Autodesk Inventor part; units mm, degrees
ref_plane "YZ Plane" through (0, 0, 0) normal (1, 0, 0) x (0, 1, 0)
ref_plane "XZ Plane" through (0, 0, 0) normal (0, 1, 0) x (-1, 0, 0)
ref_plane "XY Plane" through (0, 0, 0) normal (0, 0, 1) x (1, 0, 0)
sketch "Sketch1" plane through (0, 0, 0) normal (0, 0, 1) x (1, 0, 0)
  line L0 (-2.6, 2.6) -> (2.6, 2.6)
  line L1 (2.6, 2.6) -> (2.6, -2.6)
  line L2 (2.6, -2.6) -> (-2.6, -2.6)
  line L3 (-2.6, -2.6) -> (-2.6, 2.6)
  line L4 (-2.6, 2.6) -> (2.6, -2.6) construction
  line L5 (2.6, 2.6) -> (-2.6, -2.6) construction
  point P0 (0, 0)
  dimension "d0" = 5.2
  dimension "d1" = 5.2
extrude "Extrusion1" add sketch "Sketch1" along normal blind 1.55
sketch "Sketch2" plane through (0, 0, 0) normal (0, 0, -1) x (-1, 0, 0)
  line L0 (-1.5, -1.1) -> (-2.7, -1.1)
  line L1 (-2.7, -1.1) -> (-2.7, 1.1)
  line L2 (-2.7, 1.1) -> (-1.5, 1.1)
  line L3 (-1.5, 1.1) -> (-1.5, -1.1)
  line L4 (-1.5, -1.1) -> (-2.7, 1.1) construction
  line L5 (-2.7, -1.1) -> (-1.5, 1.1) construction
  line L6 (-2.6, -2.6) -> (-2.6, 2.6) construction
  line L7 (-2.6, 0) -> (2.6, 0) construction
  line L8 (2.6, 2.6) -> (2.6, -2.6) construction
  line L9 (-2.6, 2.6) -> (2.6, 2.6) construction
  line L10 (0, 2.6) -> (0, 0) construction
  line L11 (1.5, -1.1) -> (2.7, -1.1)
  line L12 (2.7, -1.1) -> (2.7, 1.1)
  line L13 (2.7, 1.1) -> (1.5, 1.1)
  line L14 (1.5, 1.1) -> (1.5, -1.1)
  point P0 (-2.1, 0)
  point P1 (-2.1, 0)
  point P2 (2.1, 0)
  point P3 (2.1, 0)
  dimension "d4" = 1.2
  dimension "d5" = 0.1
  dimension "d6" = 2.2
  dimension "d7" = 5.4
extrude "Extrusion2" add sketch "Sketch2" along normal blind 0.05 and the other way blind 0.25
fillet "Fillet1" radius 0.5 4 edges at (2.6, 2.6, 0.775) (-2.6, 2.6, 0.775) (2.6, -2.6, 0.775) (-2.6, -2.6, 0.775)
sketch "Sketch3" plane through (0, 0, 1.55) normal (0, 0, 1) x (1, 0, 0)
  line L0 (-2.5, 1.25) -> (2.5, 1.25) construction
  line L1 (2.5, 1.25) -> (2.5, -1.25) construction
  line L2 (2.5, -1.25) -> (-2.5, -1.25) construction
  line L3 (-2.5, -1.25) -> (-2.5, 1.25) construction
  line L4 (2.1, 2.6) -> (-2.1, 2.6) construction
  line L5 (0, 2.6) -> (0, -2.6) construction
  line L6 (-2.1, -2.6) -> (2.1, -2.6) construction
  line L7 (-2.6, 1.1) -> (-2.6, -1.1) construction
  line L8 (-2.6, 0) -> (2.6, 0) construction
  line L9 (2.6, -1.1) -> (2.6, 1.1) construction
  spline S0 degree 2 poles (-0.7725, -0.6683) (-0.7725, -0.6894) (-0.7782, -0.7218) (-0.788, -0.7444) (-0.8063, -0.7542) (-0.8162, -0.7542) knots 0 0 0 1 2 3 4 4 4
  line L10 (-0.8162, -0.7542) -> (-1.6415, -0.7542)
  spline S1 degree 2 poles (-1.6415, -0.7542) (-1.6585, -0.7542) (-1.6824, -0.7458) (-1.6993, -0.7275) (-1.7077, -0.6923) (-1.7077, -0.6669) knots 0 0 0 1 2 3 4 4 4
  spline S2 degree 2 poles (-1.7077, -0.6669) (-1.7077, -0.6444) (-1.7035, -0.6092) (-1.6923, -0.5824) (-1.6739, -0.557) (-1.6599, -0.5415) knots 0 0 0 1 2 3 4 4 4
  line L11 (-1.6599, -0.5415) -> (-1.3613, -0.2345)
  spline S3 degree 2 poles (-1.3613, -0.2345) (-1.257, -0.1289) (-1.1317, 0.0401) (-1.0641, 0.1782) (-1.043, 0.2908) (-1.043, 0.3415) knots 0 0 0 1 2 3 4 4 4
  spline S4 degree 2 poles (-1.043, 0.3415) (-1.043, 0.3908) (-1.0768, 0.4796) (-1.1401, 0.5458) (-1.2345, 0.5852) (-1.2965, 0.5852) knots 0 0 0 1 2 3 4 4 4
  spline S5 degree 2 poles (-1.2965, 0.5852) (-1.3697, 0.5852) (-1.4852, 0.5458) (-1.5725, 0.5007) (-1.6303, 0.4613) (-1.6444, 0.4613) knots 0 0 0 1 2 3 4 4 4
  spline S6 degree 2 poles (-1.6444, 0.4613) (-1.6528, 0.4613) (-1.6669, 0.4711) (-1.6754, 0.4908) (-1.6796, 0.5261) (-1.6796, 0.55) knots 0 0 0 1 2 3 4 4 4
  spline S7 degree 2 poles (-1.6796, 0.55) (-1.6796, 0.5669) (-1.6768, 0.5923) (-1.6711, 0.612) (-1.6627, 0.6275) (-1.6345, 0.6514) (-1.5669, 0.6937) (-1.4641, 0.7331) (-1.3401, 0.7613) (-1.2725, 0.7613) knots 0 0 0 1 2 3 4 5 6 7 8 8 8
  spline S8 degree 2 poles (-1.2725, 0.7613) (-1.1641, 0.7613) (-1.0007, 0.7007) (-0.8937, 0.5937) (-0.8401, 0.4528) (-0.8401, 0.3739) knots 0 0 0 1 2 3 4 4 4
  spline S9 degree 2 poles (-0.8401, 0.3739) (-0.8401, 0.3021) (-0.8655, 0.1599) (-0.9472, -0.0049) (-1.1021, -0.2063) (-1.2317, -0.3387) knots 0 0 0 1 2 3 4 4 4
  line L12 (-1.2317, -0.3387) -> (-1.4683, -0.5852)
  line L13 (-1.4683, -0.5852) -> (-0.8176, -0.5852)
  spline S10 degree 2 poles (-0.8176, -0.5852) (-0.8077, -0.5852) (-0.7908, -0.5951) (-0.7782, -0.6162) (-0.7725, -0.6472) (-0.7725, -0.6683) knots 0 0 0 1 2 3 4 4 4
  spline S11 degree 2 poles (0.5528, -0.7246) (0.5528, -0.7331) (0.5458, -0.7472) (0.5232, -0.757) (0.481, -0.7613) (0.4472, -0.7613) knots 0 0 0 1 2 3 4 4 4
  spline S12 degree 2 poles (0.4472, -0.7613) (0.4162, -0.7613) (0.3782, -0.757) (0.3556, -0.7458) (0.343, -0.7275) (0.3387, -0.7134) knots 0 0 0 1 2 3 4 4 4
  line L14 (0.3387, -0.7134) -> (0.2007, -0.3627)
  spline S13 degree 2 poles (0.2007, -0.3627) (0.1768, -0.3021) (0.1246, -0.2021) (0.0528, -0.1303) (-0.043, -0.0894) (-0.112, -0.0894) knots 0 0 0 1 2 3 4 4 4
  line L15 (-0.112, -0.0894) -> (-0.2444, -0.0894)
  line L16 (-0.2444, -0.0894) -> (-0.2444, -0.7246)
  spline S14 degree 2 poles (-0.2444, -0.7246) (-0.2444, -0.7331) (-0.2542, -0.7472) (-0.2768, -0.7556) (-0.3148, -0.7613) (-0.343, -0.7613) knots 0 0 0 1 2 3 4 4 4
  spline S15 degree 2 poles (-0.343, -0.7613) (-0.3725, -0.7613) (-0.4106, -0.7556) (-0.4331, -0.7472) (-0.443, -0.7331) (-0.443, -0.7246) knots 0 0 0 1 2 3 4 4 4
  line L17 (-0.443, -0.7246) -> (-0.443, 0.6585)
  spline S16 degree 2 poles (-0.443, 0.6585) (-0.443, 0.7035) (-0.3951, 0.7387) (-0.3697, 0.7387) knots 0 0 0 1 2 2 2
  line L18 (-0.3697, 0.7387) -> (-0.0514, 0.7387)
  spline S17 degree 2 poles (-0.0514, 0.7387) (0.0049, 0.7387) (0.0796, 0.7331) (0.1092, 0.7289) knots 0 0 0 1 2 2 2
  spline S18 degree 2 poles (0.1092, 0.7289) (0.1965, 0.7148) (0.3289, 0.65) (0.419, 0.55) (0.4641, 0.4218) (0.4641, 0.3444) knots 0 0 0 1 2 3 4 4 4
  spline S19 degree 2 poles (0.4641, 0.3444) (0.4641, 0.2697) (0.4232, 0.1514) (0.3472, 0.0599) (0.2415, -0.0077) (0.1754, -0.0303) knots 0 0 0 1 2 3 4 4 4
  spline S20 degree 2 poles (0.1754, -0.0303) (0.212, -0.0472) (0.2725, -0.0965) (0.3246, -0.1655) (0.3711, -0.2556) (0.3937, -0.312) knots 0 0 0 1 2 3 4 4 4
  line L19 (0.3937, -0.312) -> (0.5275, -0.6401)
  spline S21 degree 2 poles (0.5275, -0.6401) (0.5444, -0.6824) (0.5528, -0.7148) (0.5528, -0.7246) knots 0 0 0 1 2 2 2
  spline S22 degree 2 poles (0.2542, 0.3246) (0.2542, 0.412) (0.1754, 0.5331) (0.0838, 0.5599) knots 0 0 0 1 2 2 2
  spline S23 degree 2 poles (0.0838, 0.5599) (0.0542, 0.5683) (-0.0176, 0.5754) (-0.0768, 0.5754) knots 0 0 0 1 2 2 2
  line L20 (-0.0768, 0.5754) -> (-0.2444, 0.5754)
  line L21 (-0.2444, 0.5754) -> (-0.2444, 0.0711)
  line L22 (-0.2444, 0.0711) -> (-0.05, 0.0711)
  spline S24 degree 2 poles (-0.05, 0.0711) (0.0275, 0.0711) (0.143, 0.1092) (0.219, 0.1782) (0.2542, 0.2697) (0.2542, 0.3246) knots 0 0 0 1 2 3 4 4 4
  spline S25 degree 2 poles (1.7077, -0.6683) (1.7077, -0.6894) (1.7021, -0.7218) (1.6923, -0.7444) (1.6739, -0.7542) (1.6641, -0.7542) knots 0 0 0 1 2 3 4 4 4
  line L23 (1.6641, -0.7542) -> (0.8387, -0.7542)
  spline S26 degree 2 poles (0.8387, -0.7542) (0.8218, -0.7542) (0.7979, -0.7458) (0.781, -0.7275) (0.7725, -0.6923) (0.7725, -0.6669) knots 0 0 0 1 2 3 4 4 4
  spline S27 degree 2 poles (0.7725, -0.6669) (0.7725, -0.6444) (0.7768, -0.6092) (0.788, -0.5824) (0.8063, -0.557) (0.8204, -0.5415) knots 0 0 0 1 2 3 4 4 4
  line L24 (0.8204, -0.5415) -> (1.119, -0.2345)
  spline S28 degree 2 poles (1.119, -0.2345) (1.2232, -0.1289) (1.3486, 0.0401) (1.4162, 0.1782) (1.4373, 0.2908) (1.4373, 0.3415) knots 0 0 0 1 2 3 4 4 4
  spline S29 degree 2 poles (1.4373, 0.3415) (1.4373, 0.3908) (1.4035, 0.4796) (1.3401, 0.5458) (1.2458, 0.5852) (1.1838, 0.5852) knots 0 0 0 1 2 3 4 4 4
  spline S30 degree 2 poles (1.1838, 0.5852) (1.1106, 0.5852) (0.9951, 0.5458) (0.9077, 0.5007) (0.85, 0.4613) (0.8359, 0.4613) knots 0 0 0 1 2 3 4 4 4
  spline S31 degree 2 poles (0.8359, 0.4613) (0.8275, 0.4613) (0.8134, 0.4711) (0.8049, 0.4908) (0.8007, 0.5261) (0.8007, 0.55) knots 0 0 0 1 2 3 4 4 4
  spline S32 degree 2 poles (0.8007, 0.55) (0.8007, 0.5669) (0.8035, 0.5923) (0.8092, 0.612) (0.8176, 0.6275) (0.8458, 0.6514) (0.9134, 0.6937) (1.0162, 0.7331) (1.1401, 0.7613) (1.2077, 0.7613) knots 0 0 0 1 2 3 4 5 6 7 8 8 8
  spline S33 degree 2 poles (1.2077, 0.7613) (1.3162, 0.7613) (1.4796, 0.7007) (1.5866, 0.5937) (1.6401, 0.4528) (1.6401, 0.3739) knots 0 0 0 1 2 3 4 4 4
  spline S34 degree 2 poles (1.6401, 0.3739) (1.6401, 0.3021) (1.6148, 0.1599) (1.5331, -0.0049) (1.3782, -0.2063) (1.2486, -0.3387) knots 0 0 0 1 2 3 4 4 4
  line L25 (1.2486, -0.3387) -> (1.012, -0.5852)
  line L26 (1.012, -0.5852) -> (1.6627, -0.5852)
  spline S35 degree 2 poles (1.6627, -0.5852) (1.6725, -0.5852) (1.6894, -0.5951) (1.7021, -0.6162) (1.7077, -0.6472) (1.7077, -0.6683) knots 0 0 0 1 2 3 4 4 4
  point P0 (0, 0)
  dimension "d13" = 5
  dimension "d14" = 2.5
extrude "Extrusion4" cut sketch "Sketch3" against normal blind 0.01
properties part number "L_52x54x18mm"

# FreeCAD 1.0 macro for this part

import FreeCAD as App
import Part
import Sketcher


def edges_at(feature, points):
    """Names of the edges that pass closest to the given points."""
    edges = feature.Shape.Edges
    near = lambda p: min(range(len(edges)), key=lambda i: edges[i].distToShape(Part.Vertex(*p))[0])
    return sorted({f"Edge{near(p) + 1}" for p in points})


def add_polygon(sketch, points):
    """Adds a closed chain of lines whose ends are joined by coincident constraints."""
    first, n = sketch.GeometryCount, len(points)
    for a, b in zip(points, points[1:] + points[:1]):
        sketch.addGeometry(Part.LineSegment(App.Vector(*a, 0), App.Vector(*b, 0)), False)
    for i in range(n):
        sketch.addConstraint(Sketcher.Constraint("Coincident", first + i, 2, first + (i + 1) % n, 1))

doc = App.newDocument("Part")
body = doc.addObject("PartDesign::Body", "Body")

# Sketch on XY plane
sketch1 = body.newObject("Sketcher::SketchObject", "Sketch")
sketch1.AttachmentSupport = (doc.getObject("XY_Plane"), [""])
sketch1.MapMode = "FlatFace"
add_polygon(sketch1, [(2.6, 2.6), (-2.6, 2.6), (-2.6, -2.6), (2.6, -2.6)])  # lines 0-3
sketch1.addConstraint([
    Sketcher.Constraint("Horizontal", 0),
    Sketcher.Constraint("Vertical", 1),
    Sketcher.Constraint("Horizontal", 2),
    Sketcher.Constraint("Vertical", 3),
    Sketcher.Constraint("Symmetric", 0, 2, 2, 2, -1, 1),
    Sketcher.Constraint("Equal", 2, 1),
    Sketcher.Constraint("DistanceX", 0, 2, 0, 1, 5.2),
])
pad1 = body.newObject("PartDesign::Pad", "Pad")
pad1.Profile = sketch1
pad1.Length = 1.55

# Sketch on XY plane
sketch2 = body.newObject("Sketcher::SketchObject", "Sketch001")
sketch2.AttachmentSupport = (doc.getObject("XY_Plane"), [""])
sketch2.MapMode = "FlatFace"
add_polygon(sketch2, [(2.7, -1.1), (1.5, -1.1), (1.5, 1.1), (2.7, 1.1)])  # lines 0-3
add_polygon(sketch2, [(-1.5, 1.1), (-1.5, -1.1), (-2.7, -1.1), (-2.7, 1.1)])  # lines 4-7
sketch2.addConstraint([
    Sketcher.Constraint("Horizontal", 0),
    Sketcher.Constraint("Vertical", 1),
    Sketcher.Constraint("Horizontal", 2),
    Sketcher.Constraint("Vertical", 3),
    Sketcher.Constraint("Vertical", 4),
    Sketcher.Constraint("Horizontal", 5),
    Sketcher.Constraint("Vertical", 6),
    Sketcher.Constraint("Horizontal", 7),
    Sketcher.Constraint("Symmetric", 1, 2, 4, 2, -1, 1),
    Sketcher.Constraint("Symmetric", 3, 2, 6, 2, -1, 1),
    Sketcher.Constraint("Horizontal", 3, 2, 4, 2),
    Sketcher.Constraint("DistanceX", 0, 2, 0, 1, 1.2),
    Sketcher.Constraint("DistanceY", 1, 1, 1, 2, 2.2),
    Sketcher.Constraint("DistanceX", 5, 2, 3, 2, 5.4),
])
pad2 = body.newObject("PartDesign::Pad", "Pad001")
pad2.Profile = sketch2
pad2.Type = "TwoLengths"
pad2.Length = 0.05
pad2.Length2 = 0.25
pad2.Reversed = True
doc.recompute()

fillet = body.newObject("PartDesign::Fillet", "Fillet")
fillet.Base = (pad2, edges_at(pad2, [
    (2.6, 2.6, 0.775),
    (-2.6, 2.6, 0.775),
    (2.6, -2.6, 0.775),
    (-2.6, -2.6, 0.775),
]))
fillet.Radius = 0.5

# Sketch on XY plane
sketch3 = body.newObject("Sketcher::SketchObject", "Sketch002")
sketch3.AttachmentSupport = (doc.getObject("XY_Plane"), [""])
sketch3.MapMode = "FlatFace"
sketch3.AttachmentOffset = App.Placement(App.Vector(0, 0, 1.55), App.Rotation())
sketch3.addGeometry([
    Part.BSplineCurve([App.Vector(-0.7725, -0.6683, 0), App.Vector(-0.7725, -0.6894, 0), App.Vector(-0.7782, -0.7218, 0), App.Vector(-0.788, -0.7444, 0), App.Vector(-0.8063, -0.7542, 0), App.Vector(-0.8162, -0.7542, 0)], [3, 1, 1, 1, 3], [0, 1, 2, 3, 4], False, 2, [1, 1, 1, 1, 1, 1], False),  # 0
    Part.BSplineCurve([App.Vector(-0.8176, -0.5852, 0), App.Vector(-0.8077, -0.5852, 0), App.Vector(-0.7908, -0.5951, 0), App.Vector(-0.7782, -0.6162, 0), App.Vector(-0.7725, -0.6472, 0), App.Vector(-0.7725, -0.6683, 0)], [3, 1, 1, 1, 3], [0, 1, 2, 3, 4], False, 2, [1, 1, 1, 1, 1, 1], False),  # 1
    Part.LineSegment(App.Vector(-0.8176, -0.5852, 0), App.Vector(-1.4683, -0.5852, 0)),  # 2
    Part.LineSegment(App.Vector(-1.4683, -0.5852, 0), App.Vector(-1.2317, -0.3387, 0)),  # 3
    Part.BSplineCurve([App.Vector(-0.8401, 0.3739, 0), App.Vector(-0.8401, 0.3021, 0), App.Vector(-0.8655, 0.1599, 0), App.Vector(-0.9472, -0.0049, 0), App.Vector(-1.1021, -0.2063, 0), App.Vector(-1.2317, -0.3387, 0)], [3, 1, 1, 1, 3], [0, 1, 2, 3, 4], False, 2, [1, 1, 1, 1, 1, 1], False),  # 4
    Part.BSplineCurve([App.Vector(-1.2725, 0.7613, 0), App.Vector(-1.1641, 0.7613, 0), App.Vector(-1.0007, 0.7007, 0), App.Vector(-0.8937, 0.5937, 0), App.Vector(-0.8401, 0.4528, 0), App.Vector(-0.8401, 0.3739, 0)], [3, 1, 1, 1, 3], [0, 1, 2, 3, 4], False, 2, [1, 1, 1, 1, 1, 1], False),  # 5
    Part.BSplineCurve([App.Vector(-1.6796, 0.55, 0), App.Vector(-1.6796, 0.5669, 0), App.Vector(-1.6768, 0.5923, 0), App.Vector(-1.6711, 0.612, 0), App.Vector(-1.6627, 0.6275, 0), App.Vector(-1.6345, 0.6514, 0), App.Vector(-1.5669, 0.6937, 0), App.Vector(-1.4641, 0.7331, 0), App.Vector(-1.3401, 0.7613, 0), App.Vector(-1.2725, 0.7613, 0)], [3, 1, 1, 1, 1, 1, 1, 1, 3], [0, 1, 2, 3, 4, 5, 6, 7, 8], False, 2, [1, 1, 1, 1, 1, 1, 1, 1, 1, 1], False),  # 6
    Part.BSplineCurve([App.Vector(-1.6444, 0.4613, 0), App.Vector(-1.6528, 0.4613, 0), App.Vector(-1.6669, 0.4711, 0), App.Vector(-1.6754, 0.4908, 0), App.Vector(-1.6796, 0.5261, 0), App.Vector(-1.6796, 0.55, 0)], [3, 1, 1, 1, 3], [0, 1, 2, 3, 4], False, 2, [1, 1, 1, 1, 1, 1], False),  # 7
    Part.BSplineCurve([App.Vector(-1.2965, 0.5852, 0), App.Vector(-1.3697, 0.5852, 0), App.Vector(-1.4852, 0.5458, 0), App.Vector(-1.5725, 0.5007, 0), App.Vector(-1.6303, 0.4613, 0), App.Vector(-1.6444, 0.4613, 0)], [3, 1, 1, 1, 3], [0, 1, 2, 3, 4], False, 2, [1, 1, 1, 1, 1, 1], False),  # 8
    Part.BSplineCurve([App.Vector(-1.043, 0.3415, 0), App.Vector(-1.043, 0.3908, 0), App.Vector(-1.0768, 0.4796, 0), App.Vector(-1.1401, 0.5458, 0), App.Vector(-1.2345, 0.5852, 0), App.Vector(-1.2965, 0.5852, 0)], [3, 1, 1, 1, 3], [0, 1, 2, 3, 4], False, 2, [1, 1, 1, 1, 1, 1], False),  # 9
    Part.BSplineCurve([App.Vector(-1.3613, -0.2345, 0), App.Vector(-1.257, -0.1289, 0), App.Vector(-1.1317, 0.0401, 0), App.Vector(-1.0641, 0.1782, 0), App.Vector(-1.043, 0.2908, 0), App.Vector(-1.043, 0.3415, 0)], [3, 1, 1, 1, 3], [0, 1, 2, 3, 4], False, 2, [1, 1, 1, 1, 1, 1], False),  # 10
    Part.LineSegment(App.Vector(-1.3613, -0.2345, 0), App.Vector(-1.6599, -0.5415, 0)),  # 11
    Part.BSplineCurve([App.Vector(-1.7077, -0.6669, 0), App.Vector(-1.7077, -0.6444, 0), App.Vector(-1.7035, -0.6092, 0), App.Vector(-1.6923, -0.5824, 0), App.Vector(-1.6739, -0.557, 0), App.Vector(-1.6599, -0.5415, 0)], [3, 1, 1, 1, 3], [0, 1, 2, 3, 4], False, 2, [1, 1, 1, 1, 1, 1], False),  # 12
    Part.BSplineCurve([App.Vector(-1.6415, -0.7542, 0), App.Vector(-1.6585, -0.7542, 0), App.Vector(-1.6824, -0.7458, 0), App.Vector(-1.6993, -0.7275, 0), App.Vector(-1.7077, -0.6923, 0), App.Vector(-1.7077, -0.6669, 0)], [3, 1, 1, 1, 3], [0, 1, 2, 3, 4], False, 2, [1, 1, 1, 1, 1, 1], False),  # 13
    Part.LineSegment(App.Vector(-1.6415, -0.7542, 0), App.Vector(-0.8162, -0.7542, 0)),  # 14
    Part.BSplineCurve([App.Vector(0.5528, -0.7246, 0), App.Vector(0.5528, -0.7331, 0), App.Vector(0.5458, -0.7472, 0), App.Vector(0.5232, -0.757, 0), App.Vector(0.481, -0.7613, 0), App.Vector(0.4472, -0.7613, 0)], [3, 1, 1, 1, 3], [0, 1, 2, 3, 4], False, 2, [1, 1, 1, 1, 1, 1], False),  # 15
    Part.BSplineCurve([App.Vector(0.5275, -0.6401, 0), App.Vector(0.5444, -0.6824, 0), App.Vector(0.5528, -0.7148, 0), App.Vector(0.5528, -0.7246, 0)], [3, 1, 3], [0, 1, 2], False, 2, [1, 1, 1, 1], False),  # 16
    Part.LineSegment(App.Vector(0.5275, -0.6401, 0), App.Vector(0.3937, -0.312, 0)),  # 17
    Part.BSplineCurve([App.Vector(0.1754, -0.0303, 0), App.Vector(0.212, -0.0472, 0), App.Vector(0.2725, -0.0965, 0), App.Vector(0.3246, -0.1655, 0), App.Vector(0.3711, -0.2556, 0), App.Vector(0.3937, -0.312, 0)], [3, 1, 1, 1, 3], [0, 1, 2, 3, 4], False, 2, [1, 1, 1, 1, 1, 1], False),  # 18
    Part.BSplineCurve([App.Vector(0.4641, 0.3444, 0), App.Vector(0.4641, 0.2697, 0), App.Vector(0.4232, 0.1514, 0), App.Vector(0.3472, 0.0599, 0), App.Vector(0.2415, -0.0077, 0), App.Vector(0.1754, -0.0303, 0)], [3, 1, 1, 1, 3], [0, 1, 2, 3, 4], False, 2, [1, 1, 1, 1, 1, 1], False),  # 19
    Part.BSplineCurve([App.Vector(0.1092, 0.7289, 0), App.Vector(0.1965, 0.7148, 0), App.Vector(0.3289, 0.65, 0), App.Vector(0.419, 0.55, 0), App.Vector(0.4641, 0.4218, 0), App.Vector(0.4641, 0.3444, 0)], [3, 1, 1, 1, 3], [0, 1, 2, 3, 4], False, 2, [1, 1, 1, 1, 1, 1], False),  # 20
    Part.BSplineCurve([App.Vector(-0.0514, 0.7387, 0), App.Vector(0.0049, 0.7387, 0), App.Vector(0.0796, 0.7331, 0), App.Vector(0.1092, 0.7289, 0)], [3, 1, 3], [0, 1, 2], False, 2, [1, 1, 1, 1], False),  # 21
    Part.LineSegment(App.Vector(-0.0514, 0.7387, 0), App.Vector(-0.3697, 0.7387, 0)),  # 22
    Part.BSplineCurve([App.Vector(-0.443, 0.6585, 0), App.Vector(-0.443, 0.7035, 0), App.Vector(-0.3951, 0.7387, 0), App.Vector(-0.3697, 0.7387, 0)], [3, 1, 3], [0, 1, 2], False, 2, [1, 1, 1, 1], False),  # 23
    Part.LineSegment(App.Vector(-0.443, 0.6585, 0), App.Vector(-0.443, -0.7246, 0)),  # 24
    Part.BSplineCurve([App.Vector(-0.343, -0.7613, 0), App.Vector(-0.3725, -0.7613, 0), App.Vector(-0.4106, -0.7556, 0), App.Vector(-0.4331, -0.7472, 0), App.Vector(-0.443, -0.7331, 0), App.Vector(-0.443, -0.7246, 0)], [3, 1, 1, 1, 3], [0, 1, 2, 3, 4], False, 2, [1, 1, 1, 1, 1, 1], False),  # 25
    Part.BSplineCurve([App.Vector(-0.2444, -0.7246, 0), App.Vector(-0.2444, -0.7331, 0), App.Vector(-0.2542, -0.7472, 0), App.Vector(-0.2768, -0.7556, 0), App.Vector(-0.3148, -0.7613, 0), App.Vector(-0.343, -0.7613, 0)], [3, 1, 1, 1, 3], [0, 1, 2, 3, 4], False, 2, [1, 1, 1, 1, 1, 1], False),  # 26
    Part.LineSegment(App.Vector(-0.2444, -0.7246, 0), App.Vector(-0.2444, -0.0894, 0)),  # 27
    Part.LineSegment(App.Vector(-0.2444, -0.0894, 0), App.Vector(-0.112, -0.0894, 0)),  # 28
    Part.BSplineCurve([App.Vector(0.2007, -0.3627, 0), App.Vector(0.1768, -0.3021, 0), App.Vector(0.1246, -0.2021, 0), App.Vector(0.0528, -0.1303, 0), App.Vector(-0.043, -0.0894, 0), App.Vector(-0.112, -0.0894, 0)], [3, 1, 1, 1, 3], [0, 1, 2, 3, 4], False, 2, [1, 1, 1, 1, 1, 1], False),  # 29
    Part.LineSegment(App.Vector(0.2007, -0.3627, 0), App.Vector(0.3387, -0.7134, 0)),  # 30
    Part.BSplineCurve([App.Vector(0.4472, -0.7613, 0), App.Vector(0.4162, -0.7613, 0), App.Vector(0.3782, -0.757, 0), App.Vector(0.3556, -0.7458, 0), App.Vector(0.343, -0.7275, 0), App.Vector(0.3387, -0.7134, 0)], [3, 1, 1, 1, 3], [0, 1, 2, 3, 4], False, 2, [1, 1, 1, 1, 1, 1], False),  # 31
    Part.BSplineCurve([App.Vector(0.2542, 0.3246, 0), App.Vector(0.2542, 0.412, 0), App.Vector(0.1754, 0.5331, 0), App.Vector(0.0838, 0.5599, 0)], [3, 1, 3], [0, 1, 2], False, 2, [1, 1, 1, 1], False),  # 32
    Part.BSplineCurve([App.Vector(-0.05, 0.0711, 0), App.Vector(0.0275, 0.0711, 0), App.Vector(0.143, 0.1092, 0), App.Vector(0.219, 0.1782, 0), App.Vector(0.2542, 0.2697, 0), App.Vector(0.2542, 0.3246, 0)], [3, 1, 1, 1, 3], [0, 1, 2, 3, 4], False, 2, [1, 1, 1, 1, 1, 1], False),  # 33
    Part.LineSegment(App.Vector(-0.05, 0.0711, 0), App.Vector(-0.2444, 0.0711, 0)),  # 34
    Part.LineSegment(App.Vector(-0.2444, 0.0711, 0), App.Vector(-0.2444, 0.5754, 0)),  # 35
    Part.LineSegment(App.Vector(-0.2444, 0.5754, 0), App.Vector(-0.0768, 0.5754, 0)),  # 36
    Part.BSplineCurve([App.Vector(0.0838, 0.5599, 0), App.Vector(0.0542, 0.5683, 0), App.Vector(-0.0176, 0.5754, 0), App.Vector(-0.0768, 0.5754, 0)], [3, 1, 3], [0, 1, 2], False, 2, [1, 1, 1, 1], False),  # 37
    Part.BSplineCurve([App.Vector(1.7077, -0.6683, 0), App.Vector(1.7077, -0.6894, 0), App.Vector(1.7021, -0.7218, 0), App.Vector(1.6923, -0.7444, 0), App.Vector(1.6739, -0.7542, 0), App.Vector(1.6641, -0.7542, 0)], [3, 1, 1, 1, 3], [0, 1, 2, 3, 4], False, 2, [1, 1, 1, 1, 1, 1], False),  # 38
    Part.BSplineCurve([App.Vector(1.6627, -0.5852, 0), App.Vector(1.6725, -0.5852, 0), App.Vector(1.6894, -0.5951, 0), App.Vector(1.7021, -0.6162, 0), App.Vector(1.7077, -0.6472, 0), App.Vector(1.7077, -0.6683, 0)], [3, 1, 1, 1, 3], [0, 1, 2, 3, 4], False, 2, [1, 1, 1, 1, 1, 1], False),  # 39
    Part.LineSegment(App.Vector(1.6627, -0.5852, 0), App.Vector(1.012, -0.5852, 0)),  # 40
    Part.LineSegment(App.Vector(1.012, -0.5852, 0), App.Vector(1.2486, -0.3387, 0)),  # 41
    Part.BSplineCurve([App.Vector(1.6401, 0.3739, 0), App.Vector(1.6401, 0.3021, 0), App.Vector(1.6148, 0.1599, 0), App.Vector(1.5331, -0.0049, 0), App.Vector(1.3782, -0.2063, 0), App.Vector(1.2486, -0.3387, 0)], [3, 1, 1, 1, 3], [0, 1, 2, 3, 4], False, 2, [1, 1, 1, 1, 1, 1], False),  # 42
    Part.BSplineCurve([App.Vector(1.2077, 0.7613, 0), App.Vector(1.3162, 0.7613, 0), App.Vector(1.4796, 0.7007, 0), App.Vector(1.5866, 0.5937, 0), App.Vector(1.6401, 0.4528, 0), App.Vector(1.6401, 0.3739, 0)], [3, 1, 1, 1, 3], [0, 1, 2, 3, 4], False, 2, [1, 1, 1, 1, 1, 1], False),  # 43
    Part.BSplineCurve([App.Vector(0.8007, 0.55, 0), App.Vector(0.8007, 0.5669, 0), App.Vector(0.8035, 0.5923, 0), App.Vector(0.8092, 0.612, 0), App.Vector(0.8176, 0.6275, 0), App.Vector(0.8458, 0.6514, 0), App.Vector(0.9134, 0.6937, 0), App.Vector(1.0162, 0.7331, 0), App.Vector(1.1401, 0.7613, 0), App.Vector(1.2077, 0.7613, 0)], [3, 1, 1, 1, 1, 1, 1, 1, 3], [0, 1, 2, 3, 4, 5, 6, 7, 8], False, 2, [1, 1, 1, 1, 1, 1, 1, 1, 1, 1], False),  # 44
    Part.BSplineCurve([App.Vector(0.8359, 0.4613, 0), App.Vector(0.8275, 0.4613, 0), App.Vector(0.8134, 0.4711, 0), App.Vector(0.8049, 0.4908, 0), App.Vector(0.8007, 0.5261, 0), App.Vector(0.8007, 0.55, 0)], [3, 1, 1, 1, 3], [0, 1, 2, 3, 4], False, 2, [1, 1, 1, 1, 1, 1], False),  # 45
    Part.BSplineCurve([App.Vector(1.1838, 0.5852, 0), App.Vector(1.1106, 0.5852, 0), App.Vector(0.9951, 0.5458, 0), App.Vector(0.9077, 0.5007, 0), App.Vector(0.85, 0.4613, 0), App.Vector(0.8359, 0.4613, 0)], [3, 1, 1, 1, 3], [0, 1, 2, 3, 4], False, 2, [1, 1, 1, 1, 1, 1], False),  # 46
    Part.BSplineCurve([App.Vector(1.4373, 0.3415, 0), App.Vector(1.4373, 0.3908, 0), App.Vector(1.4035, 0.4796, 0), App.Vector(1.3401, 0.5458, 0), App.Vector(1.2458, 0.5852, 0), App.Vector(1.1838, 0.5852, 0)], [3, 1, 1, 1, 3], [0, 1, 2, 3, 4], False, 2, [1, 1, 1, 1, 1, 1], False),  # 47
    Part.BSplineCurve([App.Vector(1.119, -0.2345, 0), App.Vector(1.2232, -0.1289, 0), App.Vector(1.3486, 0.0401, 0), App.Vector(1.4162, 0.1782, 0), App.Vector(1.4373, 0.2908, 0), App.Vector(1.4373, 0.3415, 0)], [3, 1, 1, 1, 3], [0, 1, 2, 3, 4], False, 2, [1, 1, 1, 1, 1, 1], False),  # 48
    Part.LineSegment(App.Vector(1.119, -0.2345, 0), App.Vector(0.8204, -0.5415, 0)),  # 49
    Part.BSplineCurve([App.Vector(0.7725, -0.6669, 0), App.Vector(0.7725, -0.6444, 0), App.Vector(0.7768, -0.6092, 0), App.Vector(0.788, -0.5824, 0), App.Vector(0.8063, -0.557, 0), App.Vector(0.8204, -0.5415, 0)], [3, 1, 1, 1, 3], [0, 1, 2, 3, 4], False, 2, [1, 1, 1, 1, 1, 1], False),  # 50
    Part.BSplineCurve([App.Vector(0.8387, -0.7542, 0), App.Vector(0.8218, -0.7542, 0), App.Vector(0.7979, -0.7458, 0), App.Vector(0.781, -0.7275, 0), App.Vector(0.7725, -0.6923, 0), App.Vector(0.7725, -0.6669, 0)], [3, 1, 1, 1, 3], [0, 1, 2, 3, 4], False, 2, [1, 1, 1, 1, 1, 1], False),  # 51
    Part.LineSegment(App.Vector(0.8387, -0.7542, 0), App.Vector(1.6641, -0.7542, 0)),  # 52
], False)
sketch3.addConstraint([
    Sketcher.Constraint("Block", 0),
    Sketcher.Constraint("Block", 1),
    Sketcher.Constraint("Block", 4),
    Sketcher.Constraint("Block", 5),
    Sketcher.Constraint("Block", 6),
    Sketcher.Constraint("Block", 7),
    Sketcher.Constraint("Block", 8),
    Sketcher.Constraint("Block", 9),
    Sketcher.Constraint("Block", 10),
    Sketcher.Constraint("Block", 12),
    Sketcher.Constraint("Block", 13),
    Sketcher.Constraint("Block", 15),
    Sketcher.Constraint("Block", 16),
    Sketcher.Constraint("Block", 18),
    Sketcher.Constraint("Block", 19),
    Sketcher.Constraint("Block", 20),
    Sketcher.Constraint("Block", 21),
    Sketcher.Constraint("Block", 23),
    Sketcher.Constraint("Block", 25),
    Sketcher.Constraint("Block", 26),
    Sketcher.Constraint("Block", 29),
    Sketcher.Constraint("Block", 31),
    Sketcher.Constraint("Block", 32),
    Sketcher.Constraint("Block", 33),
    Sketcher.Constraint("Block", 37),
    Sketcher.Constraint("Block", 38),
    Sketcher.Constraint("Block", 39),
    Sketcher.Constraint("Block", 42),
    Sketcher.Constraint("Block", 43),
    Sketcher.Constraint("Block", 44),
    Sketcher.Constraint("Block", 45),
    Sketcher.Constraint("Block", 46),
    Sketcher.Constraint("Block", 47),
    Sketcher.Constraint("Block", 48),
    Sketcher.Constraint("Block", 50),
    Sketcher.Constraint("Block", 51),
    Sketcher.Constraint("Coincident", 1, 1, 2, 1),
    Sketcher.Constraint("Coincident", 2, 2, 3, 1),
    Sketcher.Constraint("Coincident", 3, 2, 4, 2),
    Sketcher.Constraint("Coincident", 10, 1, 11, 1),
    Sketcher.Constraint("Coincident", 11, 2, 12, 2),
    Sketcher.Constraint("Coincident", 13, 1, 14, 1),
    Sketcher.Constraint("Coincident", 14, 2, 0, 2),
    Sketcher.Constraint("Coincident", 16, 1, 17, 1),
    Sketcher.Constraint("Coincident", 17, 2, 18, 2),
    Sketcher.Constraint("Coincident", 21, 1, 22, 1),
    Sketcher.Constraint("Coincident", 22, 2, 23, 2),
    Sketcher.Constraint("Coincident", 23, 1, 24, 1),
    Sketcher.Constraint("Coincident", 24, 2, 25, 2),
    Sketcher.Constraint("Coincident", 26, 1, 27, 1),
    Sketcher.Constraint("Coincident", 27, 2, 28, 1),
    Sketcher.Constraint("Coincident", 28, 2, 29, 2),
    Sketcher.Constraint("Coincident", 29, 1, 30, 1),
    Sketcher.Constraint("Coincident", 30, 2, 31, 2),
    Sketcher.Constraint("Coincident", 33, 1, 34, 1),
    Sketcher.Constraint("Coincident", 34, 2, 35, 1),
    Sketcher.Constraint("Coincident", 35, 2, 36, 1),
    Sketcher.Constraint("Coincident", 36, 2, 37, 2),
    Sketcher.Constraint("Coincident", 39, 1, 40, 1),
    Sketcher.Constraint("Coincident", 40, 2, 41, 1),
    Sketcher.Constraint("Coincident", 41, 2, 42, 2),
    Sketcher.Constraint("Coincident", 48, 1, 49, 1),
    Sketcher.Constraint("Coincident", 49, 2, 50, 2),
    Sketcher.Constraint("Coincident", 51, 1, 52, 1),
    Sketcher.Constraint("Coincident", 52, 2, 38, 2),
    Sketcher.Constraint("Horizontal", 2),
    Sketcher.Constraint("Vertical", 27),
    Sketcher.Constraint("Horizontal", 28),
    Sketcher.Constraint("Horizontal", 34),
    Sketcher.Constraint("Vertical", 35),
    Sketcher.Constraint("Horizontal", 36),
    Sketcher.Constraint("Horizontal", 40),
    Sketcher.Constraint("DistanceX", 2, 2, 2, 1, 0.6507),
    Sketcher.Constraint("DistanceX", 34, 2, 34, 1, 0.1944),
    Sketcher.Constraint("DistanceX", 40, 2, 40, 1, 0.6507),
])
pocket1 = body.newObject("PartDesign::Pocket", "Pocket")
pocket1.Profile = sketch3
pocket1.Length = 0.01

doc.recompute()
